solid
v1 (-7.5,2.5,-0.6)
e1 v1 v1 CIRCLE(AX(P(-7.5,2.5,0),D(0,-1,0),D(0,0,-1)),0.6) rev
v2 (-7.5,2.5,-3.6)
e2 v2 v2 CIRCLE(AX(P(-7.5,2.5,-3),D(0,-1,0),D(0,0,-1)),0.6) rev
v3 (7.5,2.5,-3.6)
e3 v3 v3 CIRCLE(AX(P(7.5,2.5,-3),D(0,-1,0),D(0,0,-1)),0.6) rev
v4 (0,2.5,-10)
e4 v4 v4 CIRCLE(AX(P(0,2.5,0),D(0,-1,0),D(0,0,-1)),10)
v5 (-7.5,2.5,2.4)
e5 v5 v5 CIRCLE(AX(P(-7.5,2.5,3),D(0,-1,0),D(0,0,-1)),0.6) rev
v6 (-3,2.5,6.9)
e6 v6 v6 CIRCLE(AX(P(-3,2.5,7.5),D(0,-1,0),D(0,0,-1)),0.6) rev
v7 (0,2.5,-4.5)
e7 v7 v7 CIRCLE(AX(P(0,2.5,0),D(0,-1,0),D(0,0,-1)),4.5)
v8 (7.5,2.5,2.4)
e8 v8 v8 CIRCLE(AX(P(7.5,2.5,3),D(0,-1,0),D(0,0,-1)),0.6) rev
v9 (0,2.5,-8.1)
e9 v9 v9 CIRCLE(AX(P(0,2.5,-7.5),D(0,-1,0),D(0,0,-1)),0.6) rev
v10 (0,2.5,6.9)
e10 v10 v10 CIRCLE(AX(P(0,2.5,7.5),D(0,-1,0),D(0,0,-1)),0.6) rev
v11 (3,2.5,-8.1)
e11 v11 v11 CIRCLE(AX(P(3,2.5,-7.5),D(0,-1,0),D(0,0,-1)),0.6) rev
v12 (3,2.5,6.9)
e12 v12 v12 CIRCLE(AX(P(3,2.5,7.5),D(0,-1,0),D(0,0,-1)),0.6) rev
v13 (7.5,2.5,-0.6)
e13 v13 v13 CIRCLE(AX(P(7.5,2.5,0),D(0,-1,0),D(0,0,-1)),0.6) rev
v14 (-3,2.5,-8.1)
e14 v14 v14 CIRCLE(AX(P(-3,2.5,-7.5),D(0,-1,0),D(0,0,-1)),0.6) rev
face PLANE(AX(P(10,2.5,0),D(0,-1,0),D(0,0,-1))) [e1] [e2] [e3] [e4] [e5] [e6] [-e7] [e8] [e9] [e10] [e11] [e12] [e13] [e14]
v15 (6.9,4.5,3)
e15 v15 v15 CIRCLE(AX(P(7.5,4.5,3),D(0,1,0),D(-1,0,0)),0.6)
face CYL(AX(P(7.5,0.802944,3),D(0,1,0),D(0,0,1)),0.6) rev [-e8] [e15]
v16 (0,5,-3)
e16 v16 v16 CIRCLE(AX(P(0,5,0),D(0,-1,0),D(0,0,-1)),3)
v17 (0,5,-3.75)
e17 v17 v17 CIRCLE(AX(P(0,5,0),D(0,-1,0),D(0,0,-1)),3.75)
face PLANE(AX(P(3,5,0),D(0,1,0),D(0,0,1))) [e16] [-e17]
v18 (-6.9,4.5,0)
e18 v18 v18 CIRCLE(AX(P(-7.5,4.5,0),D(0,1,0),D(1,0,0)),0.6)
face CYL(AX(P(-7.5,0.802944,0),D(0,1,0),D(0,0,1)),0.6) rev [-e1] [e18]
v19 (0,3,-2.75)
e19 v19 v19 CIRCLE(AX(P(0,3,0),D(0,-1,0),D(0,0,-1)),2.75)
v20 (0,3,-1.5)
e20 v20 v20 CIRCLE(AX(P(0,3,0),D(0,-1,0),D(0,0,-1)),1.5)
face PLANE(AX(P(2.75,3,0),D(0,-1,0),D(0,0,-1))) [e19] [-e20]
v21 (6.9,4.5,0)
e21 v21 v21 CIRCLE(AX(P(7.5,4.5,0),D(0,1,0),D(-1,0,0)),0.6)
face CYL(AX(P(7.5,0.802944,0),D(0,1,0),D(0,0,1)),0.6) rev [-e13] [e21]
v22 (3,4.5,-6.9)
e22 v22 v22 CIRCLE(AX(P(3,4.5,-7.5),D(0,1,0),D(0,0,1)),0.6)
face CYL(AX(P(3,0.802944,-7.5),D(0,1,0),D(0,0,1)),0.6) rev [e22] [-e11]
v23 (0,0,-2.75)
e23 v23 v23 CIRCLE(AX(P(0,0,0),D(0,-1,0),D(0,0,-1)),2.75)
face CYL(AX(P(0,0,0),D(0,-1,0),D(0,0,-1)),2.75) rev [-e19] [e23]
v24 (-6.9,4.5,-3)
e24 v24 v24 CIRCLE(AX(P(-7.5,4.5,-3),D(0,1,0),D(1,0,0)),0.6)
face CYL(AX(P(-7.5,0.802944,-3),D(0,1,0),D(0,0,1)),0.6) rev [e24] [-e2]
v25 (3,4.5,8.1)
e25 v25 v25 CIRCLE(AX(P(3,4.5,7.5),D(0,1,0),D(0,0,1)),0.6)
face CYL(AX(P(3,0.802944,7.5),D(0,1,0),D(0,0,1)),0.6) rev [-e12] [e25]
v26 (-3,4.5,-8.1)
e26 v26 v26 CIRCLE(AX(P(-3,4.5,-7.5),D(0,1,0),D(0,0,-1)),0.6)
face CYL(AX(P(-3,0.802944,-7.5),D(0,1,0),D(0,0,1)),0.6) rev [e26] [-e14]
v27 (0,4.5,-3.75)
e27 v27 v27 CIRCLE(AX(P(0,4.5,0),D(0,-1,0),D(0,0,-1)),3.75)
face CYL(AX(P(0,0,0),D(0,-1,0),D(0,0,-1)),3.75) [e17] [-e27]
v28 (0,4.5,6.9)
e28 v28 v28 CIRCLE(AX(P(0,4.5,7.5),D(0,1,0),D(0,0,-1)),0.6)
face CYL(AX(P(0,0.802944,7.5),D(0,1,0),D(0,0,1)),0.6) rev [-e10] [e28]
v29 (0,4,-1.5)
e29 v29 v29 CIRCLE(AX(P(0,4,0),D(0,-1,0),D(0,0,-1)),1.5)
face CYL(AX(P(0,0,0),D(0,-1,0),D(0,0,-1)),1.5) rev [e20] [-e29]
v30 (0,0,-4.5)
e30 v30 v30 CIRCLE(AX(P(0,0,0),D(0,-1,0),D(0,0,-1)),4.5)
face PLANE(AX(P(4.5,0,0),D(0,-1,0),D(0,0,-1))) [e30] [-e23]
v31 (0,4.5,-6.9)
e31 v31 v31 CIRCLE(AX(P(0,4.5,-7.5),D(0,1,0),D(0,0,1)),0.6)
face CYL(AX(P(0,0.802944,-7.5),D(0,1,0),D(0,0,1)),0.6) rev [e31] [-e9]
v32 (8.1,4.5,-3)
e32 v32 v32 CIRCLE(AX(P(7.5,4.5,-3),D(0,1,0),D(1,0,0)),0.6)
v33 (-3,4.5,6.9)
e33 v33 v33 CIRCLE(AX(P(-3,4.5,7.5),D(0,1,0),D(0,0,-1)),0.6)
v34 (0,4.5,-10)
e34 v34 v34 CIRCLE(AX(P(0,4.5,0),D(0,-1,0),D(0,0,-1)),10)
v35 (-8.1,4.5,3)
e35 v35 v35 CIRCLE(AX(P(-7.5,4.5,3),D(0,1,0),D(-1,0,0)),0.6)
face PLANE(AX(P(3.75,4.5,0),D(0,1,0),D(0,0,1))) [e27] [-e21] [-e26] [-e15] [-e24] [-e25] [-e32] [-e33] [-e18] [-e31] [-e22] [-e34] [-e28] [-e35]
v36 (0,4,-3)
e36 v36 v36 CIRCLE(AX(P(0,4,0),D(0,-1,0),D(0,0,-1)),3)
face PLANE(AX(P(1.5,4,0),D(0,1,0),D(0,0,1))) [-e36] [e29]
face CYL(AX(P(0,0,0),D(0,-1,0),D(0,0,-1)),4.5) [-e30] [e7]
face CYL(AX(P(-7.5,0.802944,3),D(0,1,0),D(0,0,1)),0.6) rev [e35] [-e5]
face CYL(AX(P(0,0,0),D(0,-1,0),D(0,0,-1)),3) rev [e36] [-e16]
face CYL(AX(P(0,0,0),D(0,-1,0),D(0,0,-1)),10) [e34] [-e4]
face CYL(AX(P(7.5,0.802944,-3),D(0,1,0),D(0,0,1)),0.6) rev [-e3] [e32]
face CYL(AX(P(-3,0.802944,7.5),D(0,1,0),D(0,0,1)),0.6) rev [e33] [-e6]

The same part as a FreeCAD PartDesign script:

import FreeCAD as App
import Part
import Sketcher
from FreeCAD import Vector

doc = App.newDocument("Part")
params = doc.addObject("Spreadsheet::Sheet", "Params")
for row, (alias, value) in enumerate([
    ("sketch1_height", "3 mm"),
    ("sketch1_height2", "2 mm"),
    ("sketch1_height3", "1 mm"),
    ("sketch1_width", "5.5 mm"),
    ("sketch1_width2", "1.5 mm"),
    ("revolution_angle", "360 deg"),
    ("sketch2_diameter", "1.2 mm"),
    ("pocket1_length", "2 mm"),
], start=1):
    params.set(f"A{row}", alias)
    params.set(f"B{row}", "=" + value)
    params.setAlias(f"B{row}", alias)

body = doc.addObject("PartDesign::Body", "Body")

sketch1 = body.newObject("Sketcher::SketchObject", "Sketch")
sketch1.AttachmentSupport = (doc.getObject("XY_Plane"), [""])
sketch1.MapMode = "FlatFace"
sketch1.addGeometry([
    Part.LineSegment(Vector(2.8, 3, 0), Vector(2.8, 0, 0)),
    Part.LineSegment(Vector(2.8, 0, 0), Vector(4.5, 0, 0)),
    Part.LineSegment(Vector(4.5, 0, 0), Vector(4.5, 2.5, 0)),
    Part.LineSegment(Vector(4.5, 2.5, 0), Vector(10, 2.5, 0)),
    Part.LineSegment(Vector(10, 2.5, 0), Vector(10, 4.5, 0)),
    Part.LineSegment(Vector(10, 4.5, 0), Vector(3.8, 4.5, 0)),
    Part.LineSegment(Vector(3.8, 4.5, 0), Vector(3.8, 5, 0)),
    Part.LineSegment(Vector(3.8, 5, 0), Vector(3, 5, 0)),
    Part.LineSegment(Vector(3, 5, 0), Vector(3, 4, 0)),
    Part.LineSegment(Vector(3, 4, 0), Vector(1.5, 4, 0)),
    Part.LineSegment(Vector(1.5, 4, 0), Vector(1.5, 3, 0)),
    Part.LineSegment(Vector(1.5, 3, 0), Vector(2.8, 3, 0)),
], False)
sketch1.addConstraint([
    Sketcher.Constraint("Coincident", 0, 2, 1, 1),
    Sketcher.Constraint("Coincident", 1, 2, 2, 1),
    Sketcher.Constraint("Coincident", 2, 2, 3, 1),
    Sketcher.Constraint("Coincident", 3, 2, 4, 1),
    Sketcher.Constraint("Coincident", 4, 2, 5, 1),
    Sketcher.Constraint("Coincident", 5, 2, 6, 1),
    Sketcher.Constraint("Coincident", 6, 2, 7, 1),
    Sketcher.Constraint("Coincident", 7, 2, 8, 1),
    Sketcher.Constraint("Coincident", 8, 2, 9, 1),
    Sketcher.Constraint("Coincident", 9, 2, 10, 1),
    Sketcher.Constraint("Coincident", 10, 2, 11, 1),
    Sketcher.Constraint("Coincident", 11, 2, 0, 1),
    Sketcher.Constraint("Vertical", 0),
    Sketcher.Constraint("Horizontal", 1),
    Sketcher.Constraint("Vertical", 2),
    Sketcher.Constraint("Horizontal", 3),
    Sketcher.Constraint("Vertical", 4),
    Sketcher.Constraint("Horizontal", 5),
    Sketcher.Constraint("Vertical", 6),
    Sketcher.Constraint("Horizontal", 7),
    Sketcher.Constraint("Vertical", 8),
    Sketcher.Constraint("Horizontal", 9),
    Sketcher.Constraint("Vertical", 10),
    Sketcher.Constraint("Horizontal", 11),
    Sketcher.Constraint("PointOnObject", 0, 2, -1),
    Sketcher.Constraint("Equal", 8, 10),
    Sketcher.Constraint("DistanceY", 0, 2, 0, 1, 3.0),
    Sketcher.Constraint("DistanceY", 4, 1, 4, 2, 2.0),
    Sketcher.Constraint("DistanceY", 8, 2, 8, 1, 1.0),
    Sketcher.Constraint("DistanceX", 3, 1, 3, 2, 5.5),
    Sketcher.Constraint("DistanceX", 9, 2, 9, 1, 1.5),
    Sketcher.Constraint("DistanceY", 2, 1, 2, 2, 2.5),
    Sketcher.Constraint("DistanceX", -1, 1, 3, 2, 10.0),
    Sketcher.Constraint("DistanceX", -1, 1, 7, 2, 3.0),
    Sketcher.Constraint("DistanceX", 0, 2, 5, 2, 1.0),
    Sketcher.Constraint("DistanceX", 1, 1, 1, 2, 1.75),
])
sketch1.setExpression("Constraints[26]", "Params.sketch1_height")
sketch1.setExpression("Constraints[27]", "Params.sketch1_height2")
sketch1.setExpression("Constraints[28]", "Params.sketch1_height3")
sketch1.setExpression("Constraints[29]", "Params.sketch1_width")
sketch1.setExpression("Constraints[30]", "Params.sketch1_width2")
revolution = body.newObject("PartDesign::Revolution", "Revolution")
revolution.Profile = sketch1
revolution.ReferenceAxis = (sketch1, ["V_Axis"])
revolution.setExpression("Angle", "Params.revolution_angle")

sketch2 = body.newObject("Sketcher::SketchObject", "Sketch001")
sketch2.AttachmentSupport = (doc.getObject("XZ_Plane"), [""])
sketch2.MapMode = "FlatFace"
sketch2.AttachmentOffset = App.Placement(Vector(0, 0, -4.5), App.Rotation())
sketch2.addGeometry([
    Part.Circle(Vector(0, -7.5, 0), Vector(0, 0, 1), 0.6),
    Part.Circle(Vector(3, -7.5, 0), Vector(0, 0, 1), 0.6),
    Part.Circle(Vector(-3, -7.5, 0), Vector(0, 0, 1), 0.6),
], False)
sketch2.addConstraint([
    Sketcher.Constraint("Equal", 0, 1),
    Sketcher.Constraint("Equal", 1, 2),
    Sketcher.Constraint("Symmetric", 1, 3, 2, 3, -2),
    Sketcher.Constraint("PointOnObject", 0, 3, -2),
    Sketcher.Constraint("Horizontal", 0, 3, 1, 3),
    Sketcher.Constraint("Diameter", 0, 1.2),
    Sketcher.Constraint("DistanceX", -1, 1, 1, 3, 3.0),
    Sketcher.Constraint("DistanceY", 0, 3, -1, 1, 7.5),
])
sketch2.setExpression("Constraints[5]", "Params.sketch2_diameter")
pocket1 = body.newObject("PartDesign::Pocket", "Pocket")
pocket1.Profile = sketch2
pocket1.setExpression("Length", "Params.pocket1_length")
pocket1.Reversed = True
doc.recompute()

polarpattern = body.newObject("PartDesign::PolarPattern", "PolarPattern")
polarpattern.Originals = [pocket1]
polarpattern.Axis = (doc.getObject("Y_Axis"), [""])
polarpattern.Angle = 360
polarpattern.Occurrences = 4
body.Tip = polarpattern

doc.recompute()
